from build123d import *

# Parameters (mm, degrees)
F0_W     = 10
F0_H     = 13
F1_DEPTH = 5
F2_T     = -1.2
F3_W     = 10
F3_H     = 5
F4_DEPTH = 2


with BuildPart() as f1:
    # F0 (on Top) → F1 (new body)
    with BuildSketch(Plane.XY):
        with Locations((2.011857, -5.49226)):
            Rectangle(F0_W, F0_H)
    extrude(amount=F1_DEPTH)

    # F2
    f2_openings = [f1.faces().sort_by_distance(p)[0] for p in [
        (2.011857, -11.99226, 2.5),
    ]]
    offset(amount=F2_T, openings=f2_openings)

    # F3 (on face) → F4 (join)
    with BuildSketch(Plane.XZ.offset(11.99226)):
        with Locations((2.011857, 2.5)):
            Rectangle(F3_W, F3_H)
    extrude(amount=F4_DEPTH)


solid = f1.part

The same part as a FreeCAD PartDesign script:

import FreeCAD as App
import Part
import Sketcher
from FreeCAD import Vector


def faces_at(feature, points):
    """Names of the faces that lie closest to the given points."""
    faces = feature.Shape.Faces
    near = lambda p: min(range(len(faces)), key=lambda i: faces[i].distToShape(Part.Vertex(*p))[0])
    return sorted({f"Face{near(p) + 1}" for p in points})

doc = App.newDocument("Part")
params = doc.addObject("Spreadsheet::Sheet", "Params")
for row, (alias, value) in enumerate([
    ("sketch1_width", "10 mm"),
    ("sketch1_height", "13 mm"),
    ("pad1_length", "5 mm"),
    ("thickness_wall", "1.2 mm"),
    ("sketch2_width", "10 mm"),
    ("sketch2_height", "5 mm"),
    ("pad2_length", "2 mm"),
], start=1):
    params.set(f"A{row}", alias)
    params.set(f"B{row}", "=" + value)
    params.setAlias(f"B{row}", alias)

body = doc.addObject("PartDesign::Body", "Body")

sketch1 = body.newObject("Sketcher::SketchObject", "Sketch")
sketch1.AttachmentSupport = (doc.getObject("XY_Plane"), [""])
sketch1.MapMode = "FlatFace"
sketch1.addGeometry(Part.LineSegment(Vector(-3, 1, 0), Vector(-3, -12, 0)), False)
sketch1.addGeometry(Part.LineSegment(Vector(-3, -12, 0), Vector(7, -12, 0)), False)
sketch1.addGeometry(Part.LineSegment(Vector(7, -12, 0), Vector(7, 1, 0)), False)
sketch1.addGeometry(Part.LineSegment(Vector(7, 1, 0), Vector(-3, 1, 0)), False)
sketch1.addConstraint(Sketcher.Constraint("Coincident", 0, 2, 1, 1))
sketch1.addConstraint(Sketcher.Constraint("Coincident", 1, 2, 2, 1))
sketch1.addConstraint(Sketcher.Constraint("Coincident", 2, 2, 3, 1))
sketch1.addConstraint(Sketcher.Constraint("Coincident", 3, 2, 0, 1))
sketch1.addConstraint(Sketcher.Constraint("Vertical", 0))
sketch1.addConstraint(Sketcher.Constraint("Horizontal", 1))
sketch1.addConstraint(Sketcher.Constraint("Vertical", 2))
sketch1.addConstraint(Sketcher.Constraint("Horizontal", 3))
sketch1.addConstraint(Sketcher.Constraint("DistanceX", 1, 1, 1, 2, 10.0))
sketch1.addConstraint(Sketcher.Constraint("DistanceY", 0, 2, 0, 1, 13.0))
sketch1.addConstraint(Sketcher.Constraint("DistanceY", 0, 2, -1, 1, 11.99226))
sketch1.addConstraint(Sketcher.Constraint("DistanceX", 0, 2, -1, 1, 2.988143))
sketch1.setExpression("Constraints[8]", "Params.sketch1_width")
sketch1.setExpression("Constraints[9]", "Params.sketch1_height")
pad1 = body.newObject("PartDesign::Pad", "Pad")
pad1.Profile = sketch1
pad1.setExpression("Length", "Params.pad1_length")
doc.recompute()

thickness = body.newObject("PartDesign::Thickness", "Thickness")
thickness.Base = (pad1, faces_at(pad1, [(2.012, -11.992, 2.5)]))
thickness.setExpression("Value", "Params.thickness_wall")
thickness.Reversed = True
thickness.Join = "Arc"

sketch2 = body.newObject("Sketcher::SketchObject", "Sketch001")
sketch2.AttachmentSupport = (doc.getObject("XZ_Plane"), [""])
sketch2.MapMode = "FlatFace"
sketch2.AttachmentOffset = App.Placement(Vector(0, 0, 11.99226), App.Rotation())
sketch2.addGeometry(Part.LineSegment(Vector(-3, 5, 0), Vector(-3, 0, 0)), False)
sketch2.addGeometry(Part.LineSegment(Vector(-3, 0, 0), Vector(7, 0, 0)), False)
sketch2.addGeometry(Part.LineSegment(Vector(7, 0, 0), Vector(7, 5, 0)), False)
sketch2.addGeometry(Part.LineSegment(Vector(7, 5, 0), Vector(-3, 5, 0)), False)
sketch2.addConstraint(Sketcher.Constraint("Coincident", 0, 2, 1, 1))
sketch2.addConstraint(Sketcher.Constraint("Coincident", 1, 2, 2, 1))
sketch2.addConstraint(Sketcher.Constraint("Coincident", 2, 2, 3, 1))
sketch2.addConstraint(Sketcher.Constraint("Coincident", 3, 2, 0, 1))
sketch2.addConstraint(Sketcher.Constraint("Vertical", 0))
sketch2.addConstraint(Sketcher.Constraint("Horizontal", 1))
sketch2.addConstraint(Sketcher.Constraint("Vertical", 2))
sketch2.addConstraint(Sketcher.Constraint("Horizontal", 3))
sketch2.addConstraint(Sketcher.Constraint("PointOnObject", 0, 2, -1))
sketch2.addConstraint(Sketcher.Constraint("DistanceX", 1, 1, 1, 2, 10.0))
sketch2.addConstraint(Sketcher.Constraint("DistanceY", 0, 2, 0, 1, 5.0))
sketch2.addConstraint(Sketcher.Constraint("DistanceX", 0, 2, -1, 1, 2.988143))
sketch2.setExpression("Constraints[9]", "Params.sketch2_width")
sketch2.setExpression("Constraints[10]", "Params.sketch2_height")
pad2 = body.newObject("PartDesign::Pad", "Pad001")
pad2.Profile = sketch2
pad2.setExpression("Length", "Params.pad2_length")

doc.recompute()
